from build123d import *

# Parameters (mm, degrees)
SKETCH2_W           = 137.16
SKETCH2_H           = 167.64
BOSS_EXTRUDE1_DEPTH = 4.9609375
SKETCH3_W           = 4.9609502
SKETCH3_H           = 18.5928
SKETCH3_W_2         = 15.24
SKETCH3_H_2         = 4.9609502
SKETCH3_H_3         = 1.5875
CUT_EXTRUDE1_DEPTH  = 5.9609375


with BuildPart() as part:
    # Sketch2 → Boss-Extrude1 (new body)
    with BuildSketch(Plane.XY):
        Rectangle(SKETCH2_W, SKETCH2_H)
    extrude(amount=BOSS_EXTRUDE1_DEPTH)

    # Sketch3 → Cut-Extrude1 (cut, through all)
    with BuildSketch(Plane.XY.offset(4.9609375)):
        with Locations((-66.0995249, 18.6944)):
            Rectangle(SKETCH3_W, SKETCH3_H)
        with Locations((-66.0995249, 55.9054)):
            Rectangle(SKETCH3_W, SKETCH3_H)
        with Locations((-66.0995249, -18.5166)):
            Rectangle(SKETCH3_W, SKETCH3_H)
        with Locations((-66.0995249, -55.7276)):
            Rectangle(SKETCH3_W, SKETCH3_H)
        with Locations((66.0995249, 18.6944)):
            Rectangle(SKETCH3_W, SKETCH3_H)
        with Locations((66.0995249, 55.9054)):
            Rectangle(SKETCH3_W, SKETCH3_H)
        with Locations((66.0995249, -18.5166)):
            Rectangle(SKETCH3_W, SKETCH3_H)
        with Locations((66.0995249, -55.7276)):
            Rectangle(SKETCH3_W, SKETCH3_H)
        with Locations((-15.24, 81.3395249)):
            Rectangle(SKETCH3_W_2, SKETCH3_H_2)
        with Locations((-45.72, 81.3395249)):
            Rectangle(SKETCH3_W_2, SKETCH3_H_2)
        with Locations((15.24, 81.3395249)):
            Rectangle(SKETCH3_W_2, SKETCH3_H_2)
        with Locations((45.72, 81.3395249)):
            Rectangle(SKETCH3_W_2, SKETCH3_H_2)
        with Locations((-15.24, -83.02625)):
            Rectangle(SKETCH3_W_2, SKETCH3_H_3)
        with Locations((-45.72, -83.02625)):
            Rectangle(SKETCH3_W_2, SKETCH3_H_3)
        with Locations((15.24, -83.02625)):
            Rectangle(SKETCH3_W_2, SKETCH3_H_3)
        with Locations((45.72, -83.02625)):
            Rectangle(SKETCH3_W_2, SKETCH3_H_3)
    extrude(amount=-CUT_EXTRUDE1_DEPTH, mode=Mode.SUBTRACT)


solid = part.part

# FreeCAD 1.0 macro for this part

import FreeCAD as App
import Part
import Sketcher
from FreeCAD import Vector
Q = App.Units.Quantity


def add_polygon(sketch, points):
    """Adds a closed chain of lines whose ends are joined by coincident constraints."""
    first, n = sketch.GeometryCount, len(points)
    for a, b in zip(points, points[1:] + points[:1]):
        sketch.addGeometry(Part.LineSegment(App.Vector(*a, 0), App.Vector(*b, 0)), False)
    for i in range(n):
        sketch.addConstraint(Sketcher.Constraint("Coincident", first + i, 2, first + (i + 1) % n, 1))

doc = App.newDocument("Part")
body = doc.addObject("PartDesign::Body", "Body")

# Sketch on XY plane
sketch1 = body.newObject("Sketcher::SketchObject", "Sketch")
sketch1.AttachmentSupport = (doc.getObject("XY_Plane"), [""])
sketch1.MapMode = "FlatFace"
add_polygon(sketch1, [(-69, 84), (-69, -84), (69, -84), (69, 84)])  # lines 0-3
sketch1.addConstraint(Sketcher.Constraint("Vertical", 0))
sketch1.addConstraint(Sketcher.Constraint("Horizontal", 1))
sketch1.addConstraint(Sketcher.Constraint("Vertical", 2))
sketch1.addConstraint(Sketcher.Constraint("Horizontal", 3))
sketch1.addConstraint(Sketcher.Constraint("Symmetric", 0, 2, 2, 2, -1, 1))
sketch1.addConstraint(Sketcher.Constraint("DistanceX", 1, 1, 1, 2, Q("5.4 in")))
sketch1.addConstraint(Sketcher.Constraint("DistanceY", 0, 2, 0, 1, Q("6.6 in")))
pad1 = body.newObject("PartDesign::Pad", "Pad")
pad1.Profile = sketch1
pad1.Length = 4.960938

# Sketch on XY plane
sketch2 = body.newObject("Sketcher::SketchObject", "Sketch001")
sketch2.AttachmentSupport = (doc.getObject("XY_Plane"), [""])
sketch2.MapMode = "FlatFace"
sketch2.AttachmentOffset = App.Placement(Vector(0, 0, 4.960938), App.Rotation())
add_polygon(sketch2, [(-68.6, 28), (-68.6, 9.4), (-63.6, 9.4), (-63.6, 28)])  # lines 0-3
add_polygon(sketch2, [(-68.6, 65.2), (-68.6, 46.6), (-63.6, 46.6), (-63.6, 65.2)])  # lines 4-7
add_polygon(sketch2, [(-68.6, -9.2), (-68.6, -27.8), (-63.6, -27.8), (-63.6, -9.2)])  # lines 8-11
add_polygon(sketch2, [(-68.6, -46.4), (-68.6, -65), (-63.6, -65), (-63.6, -46.4)])  # lines 12-15
add_polygon(sketch2, [(63.6, 28), (63.6, 9.4), (68.6, 9.4), (68.6, 28)])  # lines 16-19
add_polygon(sketch2, [(63.6, 65.2), (63.6, 46.6), (68.6, 46.6), (68.6, 65.2)])  # lines 20-23
add_polygon(sketch2, [(63.6, -9.2), (63.6, -27.8), (68.6, -27.8), (68.6, -9.2)])  # lines 24-27
add_polygon(sketch2, [(63.6, -46.4), (63.6, -65), (68.6, -65), (68.6, -46.4)])  # lines 28-31
add_polygon(sketch2, [(-22.9, 83.8), (-22.9, 78.9), (-7.6, 78.9), (-7.6, 83.8)])  # lines 32-35
add_polygon(sketch2, [(-53.3, 83.8), (-53.3, 78.9), (-38.1, 78.9), (-38.1, 83.8)])  # lines 36-39
add_polygon(sketch2, [(7.6, 83.8), (7.6, 78.9), (22.9, 78.9), (22.9, 83.8)])  # lines 40-43
add_polygon(sketch2, [(38.1, 83.8), (38.1, 78.9), (53.3, 78.9), (53.3, 83.8)])  # lines 44-47
add_polygon(sketch2, [(-22.9, -82.2), (-22.9, -83.8), (-7.6, -83.8), (-7.6, -82.2)])  # lines 48-51
add_polygon(sketch2, [(-53.3, -82.2), (-53.3, -83.8), (-38.1, -83.8), (-38.1, -82.2)])  # lines 52-55
add_polygon(sketch2, [(7.6, -82.2), (7.6, -83.8), (22.9, -83.8), (22.9, -82.2)])  # lines 56-59
add_polygon(sketch2, [(38.1, -82.2), (38.1, -83.8), (53.3, -83.8), (53.3, -82.2)])  # lines 60-63
sketch2.addConstraint(Sketcher.Constraint("Vertical", 0))
sketch2.addConstraint(Sketcher.Constraint("Horizontal", 1))
sketch2.addConstraint(Sketcher.Constraint("Vertical", 2))
sketch2.addConstraint(Sketcher.Constraint("Horizontal", 3))
sketch2.addConstraint(Sketcher.Constraint("Vertical", 4))
sketch2.addConstraint(Sketcher.Constraint("Horizontal", 5))
sketch2.addConstraint(Sketcher.Constraint("Vertical", 6))
sketch2.addConstraint(Sketcher.Constraint("Horizontal", 7))
sketch2.addConstraint(Sketcher.Constraint("Vertical", 8))
sketch2.addConstraint(Sketcher.Constraint("Horizontal", 9))
sketch2.addConstraint(Sketcher.Constraint("Vertical", 10))
sketch2.addConstraint(Sketcher.Constraint("Horizontal", 11))
sketch2.addConstraint(Sketcher.Constraint("Vertical", 12))
sketch2.addConstraint(Sketcher.Constraint("Horizontal", 13))
sketch2.addConstraint(Sketcher.Constraint("Vertical", 14))
sketch2.addConstraint(Sketcher.Constraint("Horizontal", 15))
sketch2.addConstraint(Sketcher.Constraint("Vertical", 16))
sketch2.addConstraint(Sketcher.Constraint("Horizontal", 17))
sketch2.addConstraint(Sketcher.Constraint("Vertical", 18))
sketch2.addConstraint(Sketcher.Constraint("Horizontal", 19))
sketch2.addConstraint(Sketcher.Constraint("Vertical", 20))
sketch2.addConstraint(Sketcher.Constraint("Horizontal", 21))
sketch2.addConstraint(Sketcher.Constraint("Vertical", 22))
sketch2.addConstraint(Sketcher.Constraint("Horizontal", 23))
sketch2.addConstraint(Sketcher.Constraint("Vertical", 24))
sketch2.addConstraint(Sketcher.Constraint("Horizontal", 25))
sketch2.addConstraint(Sketcher.Constraint("Vertical", 26))
sketch2.addConstraint(Sketcher.Constraint("Horizontal", 27))
sketch2.addConstraint(Sketcher.Constraint("Vertical", 28))
sketch2.addConstraint(Sketcher.Constraint("Horizontal", 29))
sketch2.addConstraint(Sketcher.Constraint("Vertical", 30))
sketch2.addConstraint(Sketcher.Constraint("Horizontal", 31))
sketch2.addConstraint(Sketcher.Constraint("Vertical", 32))
sketch2.addConstraint(Sketcher.Constraint("Horizontal", 33))
sketch2.addConstraint(Sketcher.Constraint("Vertical", 34))
sketch2.addConstraint(Sketcher.Constraint("Horizontal", 35))
sketch2.addConstraint(Sketcher.Constraint("Vertical", 36))
sketch2.addConstraint(Sketcher.Constraint("Horizontal", 37))
sketch2.addConstraint(Sketcher.Constraint("Vertical", 38))
sketch2.addConstraint(Sketcher.Constraint("Horizontal", 39))
sketch2.addConstraint(Sketcher.Constraint("Vertical", 40))
sketch2.addConstraint(Sketcher.Constraint("Horizontal", 41))
sketch2.addConstraint(Sketcher.Constraint("Vertical", 42))
sketch2.addConstraint(Sketcher.Constraint("Horizontal", 43))
sketch2.addConstraint(Sketcher.Constraint("Vertical", 44))
sketch2.addConstraint(Sketcher.Constraint("Horizontal", 45))
sketch2.addConstraint(Sketcher.Constraint("Vertical", 46))
sketch2.addConstraint(Sketcher.Constraint("Horizontal", 47))
sketch2.addConstraint(Sketcher.Constraint("Vertical", 48))
sketch2.addConstraint(Sketcher.Constraint("Horizontal", 49))
sketch2.addConstraint(Sketcher.Constraint("Vertical", 50))
sketch2.addConstraint(Sketcher.Constraint("Horizontal", 51))
sketch2.addConstraint(Sketcher.Constraint("Vertical", 52))
sketch2.addConstraint(Sketcher.Constraint("Horizontal", 53))
sketch2.addConstraint(Sketcher.Constraint("Vertical", 54))
sketch2.addConstraint(Sketcher.Constraint("Horizontal", 55))
sketch2.addConstraint(Sketcher.Constraint("Vertical", 56))
sketch2.addConstraint(Sketcher.Constraint("Horizontal", 57))
sketch2.addConstraint(Sketcher.Constraint("Vertical", 58))
sketch2.addConstraint(Sketcher.Constraint("Horizontal", 59))
sketch2.addConstraint(Sketcher.Constraint("Vertical", 60))
sketch2.addConstraint(Sketcher.Constraint("Horizontal", 61))
sketch2.addConstraint(Sketcher.Constraint("Vertical", 62))
sketch2.addConstraint(Sketcher.Constraint("Horizontal", 63))
sketch2.addConstraint(Sketcher.Constraint("Symmetric", 42, 2, 48, 2, -1, 1))
sketch2.addConstraint(Sketcher.Constraint("Symmetric", 46, 2, 52, 2, -1, 1))
sketch2.addConstraint(Sketcher.Constraint("Symmetric", 34, 2, 56, 2, -1, 1))
sketch2.addConstraint(Sketcher.Constraint("Symmetric", 38, 2, 60, 2, -1, 1))
sketch2.addConstraint(Sketcher.Constraint("Symmetric", 1, 2, 16, 2, -2))
sketch2.addConstraint(Sketcher.Constraint("Symmetric", 3, 2, 18, 2, -2))
sketch2.addConstraint(Sketcher.Constraint("Symmetric", 5, 2, 20, 2, -2))
sketch2.addConstraint(Sketcher.Constraint("Symmetric", 7, 2, 22, 2, -2))
sketch2.addConstraint(Sketcher.Constraint("Symmetric", 9, 2, 24, 2, -2))
sketch2.addConstraint(Sketcher.Constraint("Symmetric", 11, 2, 26, 2, -2))
sketch2.addConstraint(Sketcher.Constraint("Symmetric", 13, 2, 28, 2, -2))
sketch2.addConstraint(Sketcher.Constraint("Symmetric", 15, 2, 30, 2, -2))
sketch2.addConstraint(Sketcher.Constraint("Symmetric", 33, 2, 40, 2, -2))
sketch2.addConstraint(Sketcher.Constraint("Symmetric", 35, 2, 42, 2, -2))
sketch2.addConstraint(Sketcher.Constraint("Symmetric", 37, 2, 44, 2, -2))
sketch2.addConstraint(Sketcher.Constraint("Symmetric", 39, 2, 46, 2, -2))
sketch2.addConstraint(Sketcher.Constraint("Symmetric", 51, 2, 58, 2, -2))
sketch2.addConstraint(Sketcher.Constraint("Symmetric", 55, 2, 62, 2, -2))
sketch2.addConstraint(Sketcher.Constraint("Horizontal", 33, 2, 36, 2))
sketch2.addConstraint(Sketcher.Constraint("Horizontal", 35, 2, 38, 2))
sketch2.addConstraint(Sketcher.Constraint("Horizontal", 51, 2, 54, 2))
sketch2.addConstraint(Sketcher.Constraint("Vertical", 3, 2, 4, 2))
sketch2.addConstraint(Sketcher.Constraint("Vertical", 2, 2, 5, 2))
sketch2.addConstraint(Sketcher.Constraint("Vertical", 7, 2, 8, 2))
sketch2.addConstraint(Sketcher.Constraint("Vertical", 6, 2, 9, 2))
sketch2.addConstraint(Sketcher.Constraint("Vertical", 11, 2, 12, 2))
sketch2.addConstraint(Sketcher.Constraint("Vertical", 10, 2, 13, 2))
sketch2.addConstraint(Sketcher.Constraint("Vertical", 34, 2, 49, 2))
sketch2.addConstraint(Sketcher.Constraint("Vertical", 38, 2, 53, 2))
sketch2.addConstraint(Sketcher.Constraint("Equal", 35, 37))
sketch2.addConstraint(Sketcher.Constraint("Equal", 2, 4))
sketch2.addConstraint(Sketcher.Constraint("Equal", 6, 8))
sketch2.addConstraint(Sketcher.Constraint("Equal", 10, 12))
sketch2.addConstraint(Sketcher.Constraint("Equal", 31, 32))
sketch2.addConstraint(Sketcher.Constraint("DistanceX", 33, 1, 33, 2, Q("0.6 in")))
sketch2.addConstraint(Sketcher.Constraint("DistanceX", 0, 2, -1, 1, Q("2.7 in")))
sketch2.addConstraint(Sketcher.Constraint("DistanceX", 32, 2, -1, 1, Q("0.9 in")))
sketch2.addConstraint(Sketcher.Constraint("DistanceY", -1, 1, 34, 2, Q("3.3 in")))
sketch2.addConstraint(Sketcher.Constraint("DistanceX", 36, 2, -1, 1, Q("2.1 in")))
sketch2.addConstraint(Sketcher.Constraint("DistanceY", 0, 2, 0, 1, Q("0.732 in")))
sketch2.addConstraint(Sketcher.Constraint("DistanceY", 48, 2, 48, 1, Q("0.0625 in")))
sketch2.addConstraint(Sketcher.Constraint("DistanceY", -1, 1, 0, 2, Q("0.37 in")))
sketch2.addConstraint(Sketcher.Constraint("DistanceY", 12, 2, -1, 1, Q("2.56 in")))
sketch2.addConstraint(Sketcher.Constraint("DistanceY", -1, 1, 4, 2, Q("1.835 in")))
sketch2.addConstraint(Sketcher.Constraint("DistanceY", 8, 2, -1, 1, Q("1.095 in")))
sketch2.addConstraint(Sketcher.Constraint("DistanceX", 1, 1, 1, 2, Q("4.96095 mm")))
pocket1 = body.newObject("PartDesign::Pocket", "Pocket")
pocket1.Profile = sketch2
pocket1.Type = "ThroughAll"

doc.recompute()
